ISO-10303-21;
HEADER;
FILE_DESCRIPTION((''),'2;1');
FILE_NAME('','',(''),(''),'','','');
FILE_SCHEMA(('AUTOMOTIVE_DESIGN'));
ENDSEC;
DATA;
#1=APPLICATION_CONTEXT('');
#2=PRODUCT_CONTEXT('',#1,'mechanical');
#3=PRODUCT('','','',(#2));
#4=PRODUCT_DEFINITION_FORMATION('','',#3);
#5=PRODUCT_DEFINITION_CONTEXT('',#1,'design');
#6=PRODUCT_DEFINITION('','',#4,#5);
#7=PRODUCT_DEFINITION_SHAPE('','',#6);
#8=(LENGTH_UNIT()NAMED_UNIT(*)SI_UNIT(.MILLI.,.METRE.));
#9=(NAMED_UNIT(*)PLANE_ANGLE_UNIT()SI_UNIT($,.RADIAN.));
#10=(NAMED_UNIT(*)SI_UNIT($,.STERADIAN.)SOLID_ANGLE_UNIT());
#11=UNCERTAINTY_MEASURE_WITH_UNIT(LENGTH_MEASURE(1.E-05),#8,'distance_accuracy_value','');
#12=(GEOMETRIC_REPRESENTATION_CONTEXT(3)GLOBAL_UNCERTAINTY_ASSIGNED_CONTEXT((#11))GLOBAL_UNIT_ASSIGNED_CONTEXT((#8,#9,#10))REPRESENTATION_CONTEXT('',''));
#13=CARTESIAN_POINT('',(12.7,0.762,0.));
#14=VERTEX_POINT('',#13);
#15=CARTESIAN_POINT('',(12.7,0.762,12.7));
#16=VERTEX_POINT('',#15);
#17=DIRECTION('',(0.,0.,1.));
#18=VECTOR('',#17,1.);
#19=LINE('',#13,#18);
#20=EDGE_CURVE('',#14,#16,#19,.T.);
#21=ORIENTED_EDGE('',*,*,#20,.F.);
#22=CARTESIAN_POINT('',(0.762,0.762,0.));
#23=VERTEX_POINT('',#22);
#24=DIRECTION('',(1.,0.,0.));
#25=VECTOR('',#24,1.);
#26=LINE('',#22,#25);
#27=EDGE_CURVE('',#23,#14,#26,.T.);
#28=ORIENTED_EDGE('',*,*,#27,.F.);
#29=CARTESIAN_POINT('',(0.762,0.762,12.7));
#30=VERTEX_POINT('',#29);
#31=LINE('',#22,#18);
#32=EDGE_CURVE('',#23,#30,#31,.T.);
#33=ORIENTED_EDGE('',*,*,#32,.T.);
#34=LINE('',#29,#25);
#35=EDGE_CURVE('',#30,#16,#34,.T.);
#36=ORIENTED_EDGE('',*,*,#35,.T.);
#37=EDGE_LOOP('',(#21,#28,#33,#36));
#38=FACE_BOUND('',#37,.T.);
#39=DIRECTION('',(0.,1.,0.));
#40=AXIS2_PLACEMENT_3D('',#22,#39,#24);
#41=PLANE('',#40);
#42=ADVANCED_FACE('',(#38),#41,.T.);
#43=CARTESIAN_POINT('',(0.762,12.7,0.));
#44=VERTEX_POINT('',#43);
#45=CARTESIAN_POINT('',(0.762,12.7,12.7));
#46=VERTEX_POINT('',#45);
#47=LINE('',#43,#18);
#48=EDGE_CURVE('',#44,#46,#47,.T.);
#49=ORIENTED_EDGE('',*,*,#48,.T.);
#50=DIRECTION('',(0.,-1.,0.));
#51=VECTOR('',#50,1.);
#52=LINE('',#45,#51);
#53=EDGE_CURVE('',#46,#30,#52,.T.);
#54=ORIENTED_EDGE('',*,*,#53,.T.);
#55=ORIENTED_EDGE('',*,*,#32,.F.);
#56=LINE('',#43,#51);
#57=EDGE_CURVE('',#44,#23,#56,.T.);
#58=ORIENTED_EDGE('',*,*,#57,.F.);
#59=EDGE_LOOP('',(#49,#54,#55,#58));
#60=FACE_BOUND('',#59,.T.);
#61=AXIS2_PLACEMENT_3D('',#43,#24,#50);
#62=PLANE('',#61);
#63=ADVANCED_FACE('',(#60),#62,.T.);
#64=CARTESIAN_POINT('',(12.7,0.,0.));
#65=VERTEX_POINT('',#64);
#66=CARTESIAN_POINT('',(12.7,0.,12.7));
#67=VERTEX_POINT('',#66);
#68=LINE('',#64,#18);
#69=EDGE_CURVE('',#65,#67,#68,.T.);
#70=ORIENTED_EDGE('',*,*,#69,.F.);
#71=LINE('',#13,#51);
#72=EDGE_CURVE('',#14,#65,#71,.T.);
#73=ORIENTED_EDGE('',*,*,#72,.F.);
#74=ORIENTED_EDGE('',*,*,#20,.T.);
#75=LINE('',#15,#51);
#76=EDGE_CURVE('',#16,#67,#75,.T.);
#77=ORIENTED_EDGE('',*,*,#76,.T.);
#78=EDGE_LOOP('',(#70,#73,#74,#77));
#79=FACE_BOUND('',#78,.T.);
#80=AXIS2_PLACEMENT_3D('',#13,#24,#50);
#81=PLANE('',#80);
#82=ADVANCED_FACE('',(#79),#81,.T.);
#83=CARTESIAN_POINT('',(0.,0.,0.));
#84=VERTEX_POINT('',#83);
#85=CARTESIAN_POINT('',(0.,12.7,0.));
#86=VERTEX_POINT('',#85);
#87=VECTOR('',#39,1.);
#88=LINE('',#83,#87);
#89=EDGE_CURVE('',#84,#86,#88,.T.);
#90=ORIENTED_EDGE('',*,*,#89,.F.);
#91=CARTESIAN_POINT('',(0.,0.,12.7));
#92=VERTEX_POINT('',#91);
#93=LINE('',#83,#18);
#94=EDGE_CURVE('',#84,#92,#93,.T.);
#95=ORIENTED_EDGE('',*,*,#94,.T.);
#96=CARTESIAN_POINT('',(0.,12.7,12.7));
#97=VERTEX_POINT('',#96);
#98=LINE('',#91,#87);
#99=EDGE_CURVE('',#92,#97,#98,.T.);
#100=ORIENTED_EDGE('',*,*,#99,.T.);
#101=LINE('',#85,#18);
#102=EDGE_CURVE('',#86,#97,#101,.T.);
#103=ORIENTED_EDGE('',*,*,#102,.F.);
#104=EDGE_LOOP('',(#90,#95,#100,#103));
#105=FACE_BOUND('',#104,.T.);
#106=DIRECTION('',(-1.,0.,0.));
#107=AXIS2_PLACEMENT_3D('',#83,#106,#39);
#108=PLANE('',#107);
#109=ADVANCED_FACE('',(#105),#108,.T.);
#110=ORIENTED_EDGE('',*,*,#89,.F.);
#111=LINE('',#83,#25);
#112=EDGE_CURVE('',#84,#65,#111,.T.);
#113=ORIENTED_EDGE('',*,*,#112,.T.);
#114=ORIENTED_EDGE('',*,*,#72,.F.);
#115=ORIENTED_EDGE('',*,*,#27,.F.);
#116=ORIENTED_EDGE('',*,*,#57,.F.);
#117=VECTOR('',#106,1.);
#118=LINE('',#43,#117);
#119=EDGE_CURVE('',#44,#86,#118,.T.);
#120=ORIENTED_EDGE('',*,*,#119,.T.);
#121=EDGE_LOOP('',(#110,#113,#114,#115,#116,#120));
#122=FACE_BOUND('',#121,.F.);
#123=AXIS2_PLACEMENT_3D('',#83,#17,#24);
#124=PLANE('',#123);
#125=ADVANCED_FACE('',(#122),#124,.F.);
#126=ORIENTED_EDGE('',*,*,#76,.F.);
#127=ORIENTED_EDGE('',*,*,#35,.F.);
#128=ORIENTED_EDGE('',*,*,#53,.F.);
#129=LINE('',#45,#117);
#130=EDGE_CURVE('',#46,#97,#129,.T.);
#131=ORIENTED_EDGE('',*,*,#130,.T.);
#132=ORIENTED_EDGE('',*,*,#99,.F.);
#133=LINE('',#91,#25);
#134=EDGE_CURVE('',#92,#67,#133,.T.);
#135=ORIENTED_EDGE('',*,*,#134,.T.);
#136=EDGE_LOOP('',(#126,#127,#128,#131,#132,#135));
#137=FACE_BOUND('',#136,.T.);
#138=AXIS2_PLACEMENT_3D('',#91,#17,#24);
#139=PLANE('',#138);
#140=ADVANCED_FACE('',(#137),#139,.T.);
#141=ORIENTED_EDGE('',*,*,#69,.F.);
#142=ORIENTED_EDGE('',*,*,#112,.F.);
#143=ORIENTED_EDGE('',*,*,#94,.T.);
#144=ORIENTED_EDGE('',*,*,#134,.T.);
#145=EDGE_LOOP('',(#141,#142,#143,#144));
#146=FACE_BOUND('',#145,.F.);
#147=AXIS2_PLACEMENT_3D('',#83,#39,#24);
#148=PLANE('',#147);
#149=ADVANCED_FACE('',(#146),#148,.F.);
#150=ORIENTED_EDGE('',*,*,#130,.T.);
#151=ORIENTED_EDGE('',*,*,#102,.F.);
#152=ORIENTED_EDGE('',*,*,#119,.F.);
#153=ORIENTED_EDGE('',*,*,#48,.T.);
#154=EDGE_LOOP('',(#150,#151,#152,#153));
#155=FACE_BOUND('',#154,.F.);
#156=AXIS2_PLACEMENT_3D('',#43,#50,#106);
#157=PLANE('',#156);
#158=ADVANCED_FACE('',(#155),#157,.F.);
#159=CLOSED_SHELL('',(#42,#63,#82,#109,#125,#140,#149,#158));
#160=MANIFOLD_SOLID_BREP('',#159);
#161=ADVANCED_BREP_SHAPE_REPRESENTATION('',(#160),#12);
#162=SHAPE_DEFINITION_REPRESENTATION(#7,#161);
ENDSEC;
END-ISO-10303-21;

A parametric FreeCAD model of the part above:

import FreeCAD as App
import Part
import Sketcher
from FreeCAD import Vector
Q = App.Units.Quantity

doc = App.newDocument("Part")
body = doc.addObject("PartDesign::Body", "Body")

# Sketch on XY plane
sketch1 = doc.addObject("Sketcher::SketchObject", "Sketch")
body.addObject(sketch1)
sketch1.AttachmentSupport = (doc.XY_Plane, [""])
sketch1.MapMode = "FlatFace"
sketch1.addGeometry([
    Part.LineSegment(Vector(0, 12.7, 0), Vector(0, 0, 0)),  # 0
    Part.LineSegment(Vector(0, 0, 0), Vector(12.7, 0, 0)),  # 1
    Part.LineSegment(Vector(12.7, 0, 0), Vector(12.7, 0.8, 0)),  # 2
    Part.LineSegment(Vector(12.7, 0.8, 0), Vector(0.8, 0.8, 0)),  # 3
    Part.LineSegment(Vector(0.8, 0.8, 0), Vector(0.8, 12.7, 0)),  # 4
    Part.LineSegment(Vector(0.8, 12.7, 0), Vector(0, 12.7, 0)),  # 5
], False)
sketch1.addConstraint([
    Sketcher.Constraint("Coincident", 0, 2, 1, 1),
    Sketcher.Constraint("Coincident", 1, 2, 2, 1),
    Sketcher.Constraint("Coincident", 2, 2, 3, 1),
    Sketcher.Constraint("Coincident", 3, 2, 4, 1),
    Sketcher.Constraint("Coincident", 4, 2, 5, 1),
    Sketcher.Constraint("Coincident", 5, 2, 0, 1),
    Sketcher.Constraint("Vertical", 0),
    Sketcher.Constraint("Horizontal", 1),
    Sketcher.Constraint("Vertical", 2),
    Sketcher.Constraint("Horizontal", 3),
    Sketcher.Constraint("Vertical", 4),
    Sketcher.Constraint("Horizontal", 5),
    Sketcher.Constraint("Coincident", 0, 2, -1, 1),
    Sketcher.Constraint("Equal", 1, 0),
    Sketcher.Constraint("Equal", 5, 2),
    Sketcher.Constraint("DistanceX", 1, 1, 1, 2, Q("0.5 in")),
    Sketcher.Constraint("DistanceX", 5, 2, 5, 1, Q("0.03 in")),
])
pad1 = doc.addObject("PartDesign::Pad", "Pad")
body.addObject(pad1)
pad1.Profile = sketch1
pad1.Length = Q("0.5 in")

doc.recompute()
